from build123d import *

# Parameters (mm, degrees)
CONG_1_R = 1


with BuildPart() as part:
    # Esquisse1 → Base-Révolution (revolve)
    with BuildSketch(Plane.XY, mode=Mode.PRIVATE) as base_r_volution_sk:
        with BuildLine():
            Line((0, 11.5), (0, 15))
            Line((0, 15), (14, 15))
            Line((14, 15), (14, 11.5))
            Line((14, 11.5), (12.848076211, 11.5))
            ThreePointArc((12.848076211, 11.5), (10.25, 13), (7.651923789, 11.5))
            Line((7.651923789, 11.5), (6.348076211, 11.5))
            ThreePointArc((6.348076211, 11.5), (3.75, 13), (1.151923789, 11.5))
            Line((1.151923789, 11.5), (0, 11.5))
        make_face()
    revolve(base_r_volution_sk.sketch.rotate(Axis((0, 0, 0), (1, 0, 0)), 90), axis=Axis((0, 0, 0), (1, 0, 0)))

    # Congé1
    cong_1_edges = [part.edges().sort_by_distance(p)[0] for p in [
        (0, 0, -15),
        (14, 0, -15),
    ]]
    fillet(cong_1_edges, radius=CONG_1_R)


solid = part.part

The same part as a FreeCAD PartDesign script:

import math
import FreeCAD as App
import Part
import Sketcher

V = App.Vector
Q = App.Units.Quantity


def edges_at(feature, points):
    """Names of the edges that pass closest to the given points."""
    edges = feature.Shape.Edges
    near = lambda p: min(range(len(edges)), key=lambda i: edges[i].distToShape(Part.Vertex(*p))[0])
    return sorted({f"Edge{near(p) + 1}" for p in points})

doc = App.newDocument("Part")
body = doc.addObject("PartDesign::Body", "Body")

# Sketch on XY plane
sketch1 = body.newObject("Sketcher::SketchObject", "Sketch")
sketch1.AttachmentSupport = (doc.getObject("XY_Plane"), [""])
sketch1.MapMode = "FlatFace"
sketch1.addGeometry([
    Part.LineSegment(V(0, 15, 0), V(0, 11.5, 0)),  # 0
    Part.LineSegment(V(0, 11.5, 0), V(1.2, 11.5, 0)),  # 1
    Part.ArcOfCircle(Part.Circle(V(3.8, 10, 0), V(0, 0, 1), 3), math.radians(30), math.radians(150)),  # 2
    Part.LineSegment(V(6.3, 11.5, 0), V(7.7, 11.5, 0)),  # 3
    Part.ArcOfCircle(Part.Circle(V(10.2, 10, 0), V(0, 0, 1), 3), math.radians(30), math.radians(150)),  # 4
    Part.LineSegment(V(12.8, 11.5, 0), V(14, 11.5, 0)),  # 5
    Part.LineSegment(V(14, 11.5, 0), V(14, 15, 0)),  # 6
    Part.LineSegment(V(14, 15, 0), V(0, 15, 0)),  # 7
], False)
sketch1.addConstraint([
    Sketcher.Constraint("Coincident", 0, 2, 1, 1),
    Sketcher.Constraint("Coincident", 1, 2, 2, 2),
    Sketcher.Constraint("Coincident", 2, 1, 3, 1),
    Sketcher.Constraint("Coincident", 3, 2, 4, 2),
    Sketcher.Constraint("Coincident", 4, 1, 5, 1),
    Sketcher.Constraint("Coincident", 5, 2, 6, 1),
    Sketcher.Constraint("Coincident", 6, 2, 7, 1),
    Sketcher.Constraint("Coincident", 7, 2, 0, 1),
    Sketcher.Constraint("Vertical", 0),
    Sketcher.Constraint("Horizontal", 1),
    Sketcher.Constraint("Horizontal", 3),
    Sketcher.Constraint("Horizontal", 5),
    Sketcher.Constraint("Vertical", 6),
    Sketcher.Constraint("Horizontal", 7),
    Sketcher.Constraint("Equal", 2, 4),
    Sketcher.Constraint("PointOnObject", 0, 2, -2),
    Sketcher.Constraint("Horizontal", 2, 3, 4, 3),
    Sketcher.Constraint("Horizontal", 1, 2, 2, 1),
    Sketcher.Constraint("Horizontal", 3, 2, 4, 1),
    Sketcher.Constraint("Equal", 1, 5),
    Sketcher.Constraint("Radius", 2, Q("3 mm")),
    Sketcher.Constraint("DistanceX", 7, 2, 7, 1, Q("14 mm")),
    Sketcher.Constraint("DistanceY", 0, 2, 0, 1, Q("3.5 mm")),
    Sketcher.Constraint("DistanceY", -1, 1, 2, 3, Q("10 mm")),
    Sketcher.Constraint("DistanceY", -1, 1, 6, 2, Q("15 mm")),
    Sketcher.Constraint("DistanceX", 2, 3, 4, 3, Q("6.5 mm")),
])
revolution = body.newObject("PartDesign::Revolution", "Revolution")
revolution.Profile = sketch1
revolution.ReferenceAxis = (sketch1, ["H_Axis"])
revolution.Angle = 360
doc.recompute()

fillet = body.newObject("PartDesign::Fillet", "Fillet")
fillet.Base = (revolution, edges_at(revolution, [(0, 0, -15), (14, 0, -15)]))
fillet.Radius = 1

doc.recompute()
